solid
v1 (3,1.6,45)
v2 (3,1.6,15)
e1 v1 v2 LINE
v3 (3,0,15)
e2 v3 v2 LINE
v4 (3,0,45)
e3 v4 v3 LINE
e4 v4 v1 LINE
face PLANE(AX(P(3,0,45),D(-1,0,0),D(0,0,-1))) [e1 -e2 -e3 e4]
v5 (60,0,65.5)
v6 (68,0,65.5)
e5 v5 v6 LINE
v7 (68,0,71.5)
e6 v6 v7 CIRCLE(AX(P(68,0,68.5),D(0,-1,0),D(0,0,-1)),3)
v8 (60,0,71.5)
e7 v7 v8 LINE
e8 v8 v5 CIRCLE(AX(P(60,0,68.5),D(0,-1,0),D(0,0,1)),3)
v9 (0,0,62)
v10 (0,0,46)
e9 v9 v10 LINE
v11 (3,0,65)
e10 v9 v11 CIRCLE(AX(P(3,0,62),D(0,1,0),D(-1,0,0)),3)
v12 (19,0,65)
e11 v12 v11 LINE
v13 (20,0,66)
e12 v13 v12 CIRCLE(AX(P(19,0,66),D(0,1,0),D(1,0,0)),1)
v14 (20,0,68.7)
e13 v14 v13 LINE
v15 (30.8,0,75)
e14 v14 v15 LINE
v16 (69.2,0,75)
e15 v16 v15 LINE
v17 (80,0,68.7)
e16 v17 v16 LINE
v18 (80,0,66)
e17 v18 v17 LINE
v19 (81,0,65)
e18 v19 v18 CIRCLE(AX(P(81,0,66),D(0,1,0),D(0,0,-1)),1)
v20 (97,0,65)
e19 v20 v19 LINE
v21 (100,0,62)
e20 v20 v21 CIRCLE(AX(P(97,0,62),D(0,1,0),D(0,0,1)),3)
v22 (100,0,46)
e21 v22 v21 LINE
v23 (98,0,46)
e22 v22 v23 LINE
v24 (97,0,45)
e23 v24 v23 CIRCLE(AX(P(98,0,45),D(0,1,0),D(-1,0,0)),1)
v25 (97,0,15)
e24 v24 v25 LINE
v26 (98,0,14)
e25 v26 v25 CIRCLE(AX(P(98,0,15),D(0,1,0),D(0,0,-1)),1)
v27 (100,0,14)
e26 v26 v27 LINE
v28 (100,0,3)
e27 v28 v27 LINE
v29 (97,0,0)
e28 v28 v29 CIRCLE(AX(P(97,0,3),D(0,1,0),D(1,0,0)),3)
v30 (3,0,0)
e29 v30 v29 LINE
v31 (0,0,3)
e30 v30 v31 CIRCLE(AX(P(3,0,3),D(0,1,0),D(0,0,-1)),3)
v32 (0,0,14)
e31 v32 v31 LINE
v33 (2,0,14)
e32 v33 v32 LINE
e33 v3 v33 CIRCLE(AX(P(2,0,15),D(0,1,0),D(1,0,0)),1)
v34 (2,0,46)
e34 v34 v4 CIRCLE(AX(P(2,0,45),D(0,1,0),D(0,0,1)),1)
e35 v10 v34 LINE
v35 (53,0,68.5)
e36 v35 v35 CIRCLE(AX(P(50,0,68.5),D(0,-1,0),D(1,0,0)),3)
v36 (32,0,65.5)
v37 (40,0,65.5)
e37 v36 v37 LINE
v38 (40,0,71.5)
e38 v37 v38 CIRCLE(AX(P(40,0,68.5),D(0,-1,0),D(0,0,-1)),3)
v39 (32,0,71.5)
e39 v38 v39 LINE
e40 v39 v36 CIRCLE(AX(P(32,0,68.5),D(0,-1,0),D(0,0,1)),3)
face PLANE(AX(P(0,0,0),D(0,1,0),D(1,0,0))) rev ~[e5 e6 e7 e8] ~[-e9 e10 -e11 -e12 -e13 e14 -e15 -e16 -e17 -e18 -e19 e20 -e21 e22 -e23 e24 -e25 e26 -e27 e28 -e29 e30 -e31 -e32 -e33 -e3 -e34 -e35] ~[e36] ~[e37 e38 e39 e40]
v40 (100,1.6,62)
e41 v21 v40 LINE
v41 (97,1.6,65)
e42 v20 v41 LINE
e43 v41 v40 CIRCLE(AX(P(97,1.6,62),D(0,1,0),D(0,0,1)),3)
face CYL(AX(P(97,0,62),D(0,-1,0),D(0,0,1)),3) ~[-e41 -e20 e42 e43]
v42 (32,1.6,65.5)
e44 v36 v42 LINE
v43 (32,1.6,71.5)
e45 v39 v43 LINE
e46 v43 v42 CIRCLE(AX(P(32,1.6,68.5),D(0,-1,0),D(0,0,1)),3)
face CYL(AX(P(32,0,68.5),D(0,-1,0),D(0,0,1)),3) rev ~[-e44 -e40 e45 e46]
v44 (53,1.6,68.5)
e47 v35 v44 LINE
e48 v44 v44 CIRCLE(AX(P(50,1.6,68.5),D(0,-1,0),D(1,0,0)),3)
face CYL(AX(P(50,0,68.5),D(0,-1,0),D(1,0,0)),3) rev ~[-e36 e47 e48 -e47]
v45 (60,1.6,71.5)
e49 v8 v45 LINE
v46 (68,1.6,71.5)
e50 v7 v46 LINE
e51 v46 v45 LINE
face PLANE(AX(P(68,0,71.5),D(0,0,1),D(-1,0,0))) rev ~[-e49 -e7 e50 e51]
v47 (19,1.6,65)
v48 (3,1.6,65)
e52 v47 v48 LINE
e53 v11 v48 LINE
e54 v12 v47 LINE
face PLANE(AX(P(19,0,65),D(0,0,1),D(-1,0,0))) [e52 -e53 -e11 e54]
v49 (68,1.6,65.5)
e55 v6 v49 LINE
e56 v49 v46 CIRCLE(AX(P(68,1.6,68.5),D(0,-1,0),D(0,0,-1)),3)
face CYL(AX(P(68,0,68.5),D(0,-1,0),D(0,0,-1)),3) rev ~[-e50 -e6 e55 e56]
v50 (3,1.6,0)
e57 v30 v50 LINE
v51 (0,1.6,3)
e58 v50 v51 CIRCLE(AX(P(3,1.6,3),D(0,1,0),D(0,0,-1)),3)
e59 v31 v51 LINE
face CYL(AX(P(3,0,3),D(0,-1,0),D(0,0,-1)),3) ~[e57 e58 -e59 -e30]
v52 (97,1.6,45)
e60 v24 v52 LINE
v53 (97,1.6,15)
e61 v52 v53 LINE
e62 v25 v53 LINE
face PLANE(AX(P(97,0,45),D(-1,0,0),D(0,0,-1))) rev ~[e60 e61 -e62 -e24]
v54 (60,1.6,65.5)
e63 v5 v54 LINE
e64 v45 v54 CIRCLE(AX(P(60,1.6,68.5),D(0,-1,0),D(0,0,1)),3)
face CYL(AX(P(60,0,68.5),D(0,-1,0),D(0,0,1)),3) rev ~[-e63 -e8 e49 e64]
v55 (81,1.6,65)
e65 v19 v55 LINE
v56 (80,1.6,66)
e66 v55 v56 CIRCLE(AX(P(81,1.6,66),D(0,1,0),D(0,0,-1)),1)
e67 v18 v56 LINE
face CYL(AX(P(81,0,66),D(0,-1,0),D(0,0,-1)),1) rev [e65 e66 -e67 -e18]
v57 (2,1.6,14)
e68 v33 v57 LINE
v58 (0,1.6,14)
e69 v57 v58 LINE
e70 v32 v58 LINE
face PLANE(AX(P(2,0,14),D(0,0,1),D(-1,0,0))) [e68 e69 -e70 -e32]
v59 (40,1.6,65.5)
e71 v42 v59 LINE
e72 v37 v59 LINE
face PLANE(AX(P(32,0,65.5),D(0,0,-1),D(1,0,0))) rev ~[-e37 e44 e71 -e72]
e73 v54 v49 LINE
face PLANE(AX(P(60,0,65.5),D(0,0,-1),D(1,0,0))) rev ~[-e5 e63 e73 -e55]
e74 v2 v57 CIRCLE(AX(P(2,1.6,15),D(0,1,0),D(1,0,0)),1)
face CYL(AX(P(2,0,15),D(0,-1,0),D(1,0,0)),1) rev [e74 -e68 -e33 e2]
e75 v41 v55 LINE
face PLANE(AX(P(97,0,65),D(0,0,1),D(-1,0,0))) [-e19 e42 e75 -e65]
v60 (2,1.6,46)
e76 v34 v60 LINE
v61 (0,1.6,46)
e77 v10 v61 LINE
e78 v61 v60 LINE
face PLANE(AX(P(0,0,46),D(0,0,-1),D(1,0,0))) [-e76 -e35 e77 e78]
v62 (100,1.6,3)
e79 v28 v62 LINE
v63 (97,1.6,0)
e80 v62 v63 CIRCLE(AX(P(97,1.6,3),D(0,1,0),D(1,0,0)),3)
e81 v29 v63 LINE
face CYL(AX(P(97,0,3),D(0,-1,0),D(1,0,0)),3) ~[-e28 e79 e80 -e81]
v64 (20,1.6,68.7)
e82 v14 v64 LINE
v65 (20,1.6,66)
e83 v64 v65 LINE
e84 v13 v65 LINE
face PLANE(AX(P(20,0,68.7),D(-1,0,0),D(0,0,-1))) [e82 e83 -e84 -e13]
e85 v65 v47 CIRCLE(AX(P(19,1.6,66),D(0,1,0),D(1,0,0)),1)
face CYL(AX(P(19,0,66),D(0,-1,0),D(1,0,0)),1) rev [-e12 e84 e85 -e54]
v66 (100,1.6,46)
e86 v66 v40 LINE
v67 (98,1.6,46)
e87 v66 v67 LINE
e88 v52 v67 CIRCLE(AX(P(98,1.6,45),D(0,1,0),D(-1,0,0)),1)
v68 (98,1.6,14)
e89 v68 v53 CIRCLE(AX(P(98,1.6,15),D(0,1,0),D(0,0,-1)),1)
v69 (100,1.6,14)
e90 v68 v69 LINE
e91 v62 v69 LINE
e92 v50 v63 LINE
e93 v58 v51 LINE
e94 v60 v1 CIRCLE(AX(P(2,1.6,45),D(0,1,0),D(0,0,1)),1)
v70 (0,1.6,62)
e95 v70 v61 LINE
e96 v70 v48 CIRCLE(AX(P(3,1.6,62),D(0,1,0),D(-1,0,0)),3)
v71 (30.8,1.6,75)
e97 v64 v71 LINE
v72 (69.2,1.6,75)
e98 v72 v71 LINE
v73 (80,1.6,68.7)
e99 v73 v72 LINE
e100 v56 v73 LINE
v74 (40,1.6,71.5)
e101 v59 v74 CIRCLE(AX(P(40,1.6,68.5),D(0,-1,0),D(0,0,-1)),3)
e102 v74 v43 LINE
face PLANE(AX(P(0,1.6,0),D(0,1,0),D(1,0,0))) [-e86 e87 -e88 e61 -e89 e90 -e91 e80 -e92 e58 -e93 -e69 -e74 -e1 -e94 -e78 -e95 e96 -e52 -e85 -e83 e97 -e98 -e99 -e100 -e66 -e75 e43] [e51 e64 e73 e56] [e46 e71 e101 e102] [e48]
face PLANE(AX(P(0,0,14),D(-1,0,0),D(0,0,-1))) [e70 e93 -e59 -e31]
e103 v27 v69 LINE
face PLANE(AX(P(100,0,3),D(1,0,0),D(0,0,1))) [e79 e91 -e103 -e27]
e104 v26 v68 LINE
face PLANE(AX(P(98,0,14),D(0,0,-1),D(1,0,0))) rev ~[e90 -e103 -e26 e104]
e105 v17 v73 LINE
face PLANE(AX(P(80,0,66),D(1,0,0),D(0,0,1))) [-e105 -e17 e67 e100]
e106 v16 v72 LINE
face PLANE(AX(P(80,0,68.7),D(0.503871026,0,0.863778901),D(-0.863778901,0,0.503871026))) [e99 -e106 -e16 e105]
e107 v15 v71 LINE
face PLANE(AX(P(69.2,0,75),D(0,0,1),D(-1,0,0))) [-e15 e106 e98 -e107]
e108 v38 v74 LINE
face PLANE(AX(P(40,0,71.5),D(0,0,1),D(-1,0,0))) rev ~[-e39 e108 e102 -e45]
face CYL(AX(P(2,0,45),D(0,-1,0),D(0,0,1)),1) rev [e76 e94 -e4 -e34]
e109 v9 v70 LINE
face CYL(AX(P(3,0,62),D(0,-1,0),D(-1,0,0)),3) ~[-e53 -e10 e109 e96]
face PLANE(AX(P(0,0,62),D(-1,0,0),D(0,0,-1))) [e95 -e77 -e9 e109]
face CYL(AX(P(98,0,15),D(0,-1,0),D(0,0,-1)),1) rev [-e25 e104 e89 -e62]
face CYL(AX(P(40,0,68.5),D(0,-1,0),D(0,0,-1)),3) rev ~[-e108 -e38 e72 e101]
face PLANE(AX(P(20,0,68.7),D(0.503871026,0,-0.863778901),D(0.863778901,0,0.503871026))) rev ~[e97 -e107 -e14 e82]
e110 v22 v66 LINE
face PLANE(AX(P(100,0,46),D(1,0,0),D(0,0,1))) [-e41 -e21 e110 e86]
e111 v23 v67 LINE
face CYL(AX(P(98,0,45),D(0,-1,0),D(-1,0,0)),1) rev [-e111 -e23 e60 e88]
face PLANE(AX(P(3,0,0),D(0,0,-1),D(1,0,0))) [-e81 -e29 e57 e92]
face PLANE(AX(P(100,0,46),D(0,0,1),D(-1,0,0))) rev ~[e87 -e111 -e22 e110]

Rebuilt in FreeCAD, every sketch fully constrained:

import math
import FreeCAD as App
import Part
import Sketcher

V = App.Vector

doc = App.newDocument("Part")
body = doc.addObject("PartDesign::Body", "Body")

sketch1 = doc.addObject("Sketcher::SketchObject", "Sketch")
body.addObject(sketch1)
sketch1.AttachmentSupport = (doc.XZ_Plane, [""])
sketch1.MapMode = "FlatFace"
sketch1.addGeometry([
    Part.LineSegment(V(97, 0, 0), V(3, 0, 0)),
    Part.ArcOfCircle(Part.Circle(V(3, 3, 0), V(0, 0, 1), 3), math.radians(180), math.radians(270)),
    Part.LineSegment(V(0, 3, 0), V(0, 14, 0)),
    Part.LineSegment(V(0, 14, 0), V(2, 14, 0)),
    Part.ArcOfCircle(Part.Circle(V(2, 15, 0), V(0, 0, 1), 1), math.radians(-90), math.radians(0)),
    Part.LineSegment(V(3, 15, 0), V(3, 45, 0)),
    Part.ArcOfCircle(Part.Circle(V(2, 45, 0), V(0, 0, 1), 1), math.radians(0), math.radians(90)),
    Part.LineSegment(V(2, 46, 0), V(0, 46, 0)),
    Part.LineSegment(V(0, 46, 0), V(0, 62, 0)),
    Part.ArcOfCircle(Part.Circle(V(3, 62, 0), V(0, 0, 1), 3), math.radians(90), math.radians(180)),
    Part.LineSegment(V(3, 65, 0), V(19, 65, 0)),
    Part.ArcOfCircle(Part.Circle(V(19, 66, 0), V(0, 0, 1), 1), math.radians(-90), math.radians(0)),
    Part.LineSegment(V(20, 66, 0), V(20, 68.7, 0)),
    Part.LineSegment(V(20, 68.7, 0), V(30.8, 75, 0)),
    Part.LineSegment(V(30.8, 75, 0), V(69.2, 75, 0)),
    Part.LineSegment(V(69.2, 75, 0), V(80, 68.7, 0)),
    Part.LineSegment(V(80, 68.7, 0), V(80, 66, 0)),
    Part.ArcOfCircle(Part.Circle(V(81, 66, 0), V(0, 0, 1), 1), math.radians(180), math.radians(270)),
    Part.LineSegment(V(81, 65, 0), V(97, 65, 0)),
    Part.ArcOfCircle(Part.Circle(V(97, 62, 0), V(0, 0, 1), 3), math.radians(0), math.radians(90)),
    Part.LineSegment(V(100, 62, 0), V(100, 46, 0)),
    Part.LineSegment(V(100, 46, 0), V(98, 46, 0)),
    Part.ArcOfCircle(Part.Circle(V(98, 45, 0), V(0, 0, 1), 1), math.radians(90), math.radians(180)),
    Part.LineSegment(V(97, 45, 0), V(97, 15, 0)),
    Part.ArcOfCircle(Part.Circle(V(98, 15, 0), V(0, 0, 1), 1), math.radians(180), math.radians(270)),
    Part.LineSegment(V(98, 14, 0), V(100, 14, 0)),
    Part.LineSegment(V(100, 14, 0), V(100, 3, 0)),
    Part.ArcOfCircle(Part.Circle(V(97, 3, 0), V(0, 0, 1), 3), math.radians(-90), math.radians(0)),
], False)
sketch1.addConstraint([
    Sketcher.Constraint("Tangent", 0, 2, 1, 2),
    Sketcher.Constraint("Tangent", 1, 1, 2, 1),
    Sketcher.Constraint("Coincident", 2, 2, 3, 1),
    Sketcher.Constraint("Tangent", 3, 2, 4, 1),
    Sketcher.Constraint("Tangent", 4, 2, 5, 1),
    Sketcher.Constraint("Tangent", 5, 2, 6, 1),
    Sketcher.Constraint("Tangent", 6, 2, 7, 1),
    Sketcher.Constraint("Coincident", 7, 2, 8, 1),
    Sketcher.Constraint("Tangent", 8, 2, 9, 2),
    Sketcher.Constraint("Tangent", 9, 1, 10, 1),
    Sketcher.Constraint("Tangent", 10, 2, 11, 1),
    Sketcher.Constraint("Tangent", 11, 2, 12, 1),
    Sketcher.Constraint("Coincident", 12, 2, 13, 1),
    Sketcher.Constraint("Coincident", 13, 2, 14, 1),
    Sketcher.Constraint("Coincident", 14, 2, 15, 1),
    Sketcher.Constraint("Coincident", 15, 2, 16, 1),
    Sketcher.Constraint("Tangent", 16, 2, 17, 1),
    Sketcher.Constraint("Tangent", 17, 2, 18, 1),
    Sketcher.Constraint("Tangent", 18, 2, 19, 2),
    Sketcher.Constraint("Tangent", 19, 1, 20, 1),
    Sketcher.Constraint("Coincident", 20, 2, 21, 1),
    Sketcher.Constraint("Tangent", 21, 2, 22, 1),
    Sketcher.Constraint("Tangent", 22, 2, 23, 1),
    Sketcher.Constraint("Tangent", 23, 2, 24, 1),
    Sketcher.Constraint("Tangent", 24, 2, 25, 1),
    Sketcher.Constraint("Coincident", 25, 2, 26, 1),
    Sketcher.Constraint("Tangent", 26, 2, 27, 2),
    Sketcher.Constraint("Tangent", 27, 1, 0, 1),
    Sketcher.Constraint("Horizontal", 0),
    Sketcher.Constraint("Vertical", 2),
    Sketcher.Constraint("Horizontal", 3),
    Sketcher.Constraint("Vertical", 5),
    Sketcher.Constraint("Horizontal", 7),
    Sketcher.Constraint("Vertical", 8),
    Sketcher.Constraint("Horizontal", 10),
    Sketcher.Constraint("Vertical", 12),
    Sketcher.Constraint("Horizontal", 14),
    Sketcher.Constraint("Vertical", 16),
    Sketcher.Constraint("Horizontal", 18),
    Sketcher.Constraint("Vertical", 20),
    Sketcher.Constraint("Horizontal", 21),
    Sketcher.Constraint("Vertical", 23),
    Sketcher.Constraint("Horizontal", 25),
    Sketcher.Constraint("Vertical", 26),
    Sketcher.Constraint("Equal", 4, 6),
    Sketcher.Constraint("Equal", 1, 9),
    Sketcher.Constraint("Equal", 6, 11),
    Sketcher.Constraint("Equal", 11, 17),
    Sketcher.Constraint("Equal", 9, 19),
    Sketcher.Constraint("Equal", 17, 22),
    Sketcher.Constraint("Equal", 22, 24),
    Sketcher.Constraint("Equal", 19, 27),
    Sketcher.Constraint("PointOnObject", 0, 2, -1),
    Sketcher.Constraint("PointOnObject", 1, 1, -2),
    Sketcher.Constraint("PointOnObject", 7, 2, -2),
    Sketcher.Constraint("Horizontal", 11, 3, 17, 3),
    Sketcher.Constraint("Horizontal", 6, 3, 22, 3),
    Sketcher.Constraint("Horizontal", 4, 3, 24, 3),
    Sketcher.Constraint("Horizontal", 12, 2, 15, 2),
    Sketcher.Constraint("Vertical", 19, 3, 27, 3),
    Sketcher.Constraint("Vertical", 0, 2, 4, 2),
    Sketcher.Constraint("Vertical", 18, 2, 22, 2),
    Sketcher.Constraint("Equal", 10, 18),
    Sketcher.Constraint("Equal", 18, 8),
    Sketcher.Constraint("Equal", 13, 15),
    Sketcher.Constraint("Radius", 1, 3.0),
    Sketcher.Constraint("Radius", 4, 1.0),
    Sketcher.Constraint("DistanceY", -1, 1, 2, 2, 14.0),
    Sketcher.Constraint("DistanceY", -1, 1, 9, 1, 65.0),
    Sketcher.Constraint("DistanceX", -1, 1, 11, 2, 20.0),
    Sketcher.Constraint("DistanceX", -1, 1, 19, 1, 100.0),
    Sketcher.Constraint("DistanceY", 10, 2, 13, 2, 10.0),
    Sketcher.Constraint("DistanceY", 10, 2, 12, 2, 3.7),
    Sketcher.Constraint("DistanceX", 12, 2, 13, 2, 10.8),
])
pad1 = doc.addObject("PartDesign::Pad", "Pad")
body.addObject(pad1)
pad1.Profile = sketch1
pad1.Length = 1.6
pad1.Reversed = True

sketch2 = doc.addObject("Sketcher::SketchObject", "Sketch001")
body.addObject(sketch2)
sketch2.AttachmentSupport = (doc.XZ_Plane, [""])
sketch2.MapMode = "FlatFace"
sketch2.addGeometry([
    Part.Circle(V(50, 68.5, 0), V(0, 0, 1), 3),
    Part.ArcOfCircle(Part.Circle(V(32, 68.5, 0), V(0, 0, 1), 3), math.radians(90), math.radians(270)),
    Part.LineSegment(V(32, 65.5, 0), V(40, 65.5, 0)),
    Part.ArcOfCircle(Part.Circle(V(40, 68.5, 0), V(0, 0, 1), 3), math.radians(-90), math.radians(90)),
    Part.LineSegment(V(40, 71.5, 0), V(32, 71.5, 0)),
    Part.ArcOfCircle(Part.Circle(V(68, 68.5, 0), V(0, 0, 1), 3), math.radians(-90), math.radians(90)),
    Part.LineSegment(V(68, 71.5, 0), V(60, 71.5, 0)),
    Part.ArcOfCircle(Part.Circle(V(60, 68.5, 0), V(0, 0, 1), 3), math.radians(90), math.radians(270)),
    Part.LineSegment(V(60, 65.5, 0), V(68, 65.5, 0)),
], False)
sketch2.addConstraint([
    Sketcher.Constraint("Tangent", 1, 2, 2, 1),
    Sketcher.Constraint("Tangent", 2, 2, 3, 1),
    Sketcher.Constraint("Tangent", 3, 2, 4, 1),
    Sketcher.Constraint("Tangent", 4, 2, 1, 1),
    Sketcher.Constraint("Tangent", 5, 2, 6, 1),
    Sketcher.Constraint("Tangent", 6, 2, 7, 1),
    Sketcher.Constraint("Tangent", 7, 2, 8, 1),
    Sketcher.Constraint("Tangent", 8, 2, 5, 1),
    Sketcher.Constraint("Horizontal", 2),
    Sketcher.Constraint("Horizontal", 4),
    Sketcher.Constraint("Horizontal", 6),
    Sketcher.Constraint("Horizontal", 8),
    Sketcher.Constraint("Equal", 0, 1),
    Sketcher.Constraint("Equal", 3, 5),
    Sketcher.Constraint("Horizontal", 0, 3, 1, 3),
    Sketcher.Constraint("Horizontal", 3, 3, 5, 3),
    Sketcher.Constraint("Equal", 4, 6),
    Sketcher.Constraint("Diameter", 0, 6.0),
    Sketcher.Constraint("DistanceX", 2, 1, 2, 2, 8.0),
    Sketcher.Constraint("DistanceX", -1, 1, 0, 3, 50.0),
    Sketcher.Constraint("DistanceX", 1, 3, 5, 3, 36.0),
    Sketcher.Constraint("DistanceY", -1, 1, 0, 3, 68.5),
    Sketcher.Constraint("DistanceX", -1, 1, 1, 3, 32.0),
])
pocket1 = doc.addObject("PartDesign::Pocket", "Pocket")
body.addObject(pocket1)
pocket1.Profile = sketch2
pocket1.Length = 1.6

doc.recompute()
